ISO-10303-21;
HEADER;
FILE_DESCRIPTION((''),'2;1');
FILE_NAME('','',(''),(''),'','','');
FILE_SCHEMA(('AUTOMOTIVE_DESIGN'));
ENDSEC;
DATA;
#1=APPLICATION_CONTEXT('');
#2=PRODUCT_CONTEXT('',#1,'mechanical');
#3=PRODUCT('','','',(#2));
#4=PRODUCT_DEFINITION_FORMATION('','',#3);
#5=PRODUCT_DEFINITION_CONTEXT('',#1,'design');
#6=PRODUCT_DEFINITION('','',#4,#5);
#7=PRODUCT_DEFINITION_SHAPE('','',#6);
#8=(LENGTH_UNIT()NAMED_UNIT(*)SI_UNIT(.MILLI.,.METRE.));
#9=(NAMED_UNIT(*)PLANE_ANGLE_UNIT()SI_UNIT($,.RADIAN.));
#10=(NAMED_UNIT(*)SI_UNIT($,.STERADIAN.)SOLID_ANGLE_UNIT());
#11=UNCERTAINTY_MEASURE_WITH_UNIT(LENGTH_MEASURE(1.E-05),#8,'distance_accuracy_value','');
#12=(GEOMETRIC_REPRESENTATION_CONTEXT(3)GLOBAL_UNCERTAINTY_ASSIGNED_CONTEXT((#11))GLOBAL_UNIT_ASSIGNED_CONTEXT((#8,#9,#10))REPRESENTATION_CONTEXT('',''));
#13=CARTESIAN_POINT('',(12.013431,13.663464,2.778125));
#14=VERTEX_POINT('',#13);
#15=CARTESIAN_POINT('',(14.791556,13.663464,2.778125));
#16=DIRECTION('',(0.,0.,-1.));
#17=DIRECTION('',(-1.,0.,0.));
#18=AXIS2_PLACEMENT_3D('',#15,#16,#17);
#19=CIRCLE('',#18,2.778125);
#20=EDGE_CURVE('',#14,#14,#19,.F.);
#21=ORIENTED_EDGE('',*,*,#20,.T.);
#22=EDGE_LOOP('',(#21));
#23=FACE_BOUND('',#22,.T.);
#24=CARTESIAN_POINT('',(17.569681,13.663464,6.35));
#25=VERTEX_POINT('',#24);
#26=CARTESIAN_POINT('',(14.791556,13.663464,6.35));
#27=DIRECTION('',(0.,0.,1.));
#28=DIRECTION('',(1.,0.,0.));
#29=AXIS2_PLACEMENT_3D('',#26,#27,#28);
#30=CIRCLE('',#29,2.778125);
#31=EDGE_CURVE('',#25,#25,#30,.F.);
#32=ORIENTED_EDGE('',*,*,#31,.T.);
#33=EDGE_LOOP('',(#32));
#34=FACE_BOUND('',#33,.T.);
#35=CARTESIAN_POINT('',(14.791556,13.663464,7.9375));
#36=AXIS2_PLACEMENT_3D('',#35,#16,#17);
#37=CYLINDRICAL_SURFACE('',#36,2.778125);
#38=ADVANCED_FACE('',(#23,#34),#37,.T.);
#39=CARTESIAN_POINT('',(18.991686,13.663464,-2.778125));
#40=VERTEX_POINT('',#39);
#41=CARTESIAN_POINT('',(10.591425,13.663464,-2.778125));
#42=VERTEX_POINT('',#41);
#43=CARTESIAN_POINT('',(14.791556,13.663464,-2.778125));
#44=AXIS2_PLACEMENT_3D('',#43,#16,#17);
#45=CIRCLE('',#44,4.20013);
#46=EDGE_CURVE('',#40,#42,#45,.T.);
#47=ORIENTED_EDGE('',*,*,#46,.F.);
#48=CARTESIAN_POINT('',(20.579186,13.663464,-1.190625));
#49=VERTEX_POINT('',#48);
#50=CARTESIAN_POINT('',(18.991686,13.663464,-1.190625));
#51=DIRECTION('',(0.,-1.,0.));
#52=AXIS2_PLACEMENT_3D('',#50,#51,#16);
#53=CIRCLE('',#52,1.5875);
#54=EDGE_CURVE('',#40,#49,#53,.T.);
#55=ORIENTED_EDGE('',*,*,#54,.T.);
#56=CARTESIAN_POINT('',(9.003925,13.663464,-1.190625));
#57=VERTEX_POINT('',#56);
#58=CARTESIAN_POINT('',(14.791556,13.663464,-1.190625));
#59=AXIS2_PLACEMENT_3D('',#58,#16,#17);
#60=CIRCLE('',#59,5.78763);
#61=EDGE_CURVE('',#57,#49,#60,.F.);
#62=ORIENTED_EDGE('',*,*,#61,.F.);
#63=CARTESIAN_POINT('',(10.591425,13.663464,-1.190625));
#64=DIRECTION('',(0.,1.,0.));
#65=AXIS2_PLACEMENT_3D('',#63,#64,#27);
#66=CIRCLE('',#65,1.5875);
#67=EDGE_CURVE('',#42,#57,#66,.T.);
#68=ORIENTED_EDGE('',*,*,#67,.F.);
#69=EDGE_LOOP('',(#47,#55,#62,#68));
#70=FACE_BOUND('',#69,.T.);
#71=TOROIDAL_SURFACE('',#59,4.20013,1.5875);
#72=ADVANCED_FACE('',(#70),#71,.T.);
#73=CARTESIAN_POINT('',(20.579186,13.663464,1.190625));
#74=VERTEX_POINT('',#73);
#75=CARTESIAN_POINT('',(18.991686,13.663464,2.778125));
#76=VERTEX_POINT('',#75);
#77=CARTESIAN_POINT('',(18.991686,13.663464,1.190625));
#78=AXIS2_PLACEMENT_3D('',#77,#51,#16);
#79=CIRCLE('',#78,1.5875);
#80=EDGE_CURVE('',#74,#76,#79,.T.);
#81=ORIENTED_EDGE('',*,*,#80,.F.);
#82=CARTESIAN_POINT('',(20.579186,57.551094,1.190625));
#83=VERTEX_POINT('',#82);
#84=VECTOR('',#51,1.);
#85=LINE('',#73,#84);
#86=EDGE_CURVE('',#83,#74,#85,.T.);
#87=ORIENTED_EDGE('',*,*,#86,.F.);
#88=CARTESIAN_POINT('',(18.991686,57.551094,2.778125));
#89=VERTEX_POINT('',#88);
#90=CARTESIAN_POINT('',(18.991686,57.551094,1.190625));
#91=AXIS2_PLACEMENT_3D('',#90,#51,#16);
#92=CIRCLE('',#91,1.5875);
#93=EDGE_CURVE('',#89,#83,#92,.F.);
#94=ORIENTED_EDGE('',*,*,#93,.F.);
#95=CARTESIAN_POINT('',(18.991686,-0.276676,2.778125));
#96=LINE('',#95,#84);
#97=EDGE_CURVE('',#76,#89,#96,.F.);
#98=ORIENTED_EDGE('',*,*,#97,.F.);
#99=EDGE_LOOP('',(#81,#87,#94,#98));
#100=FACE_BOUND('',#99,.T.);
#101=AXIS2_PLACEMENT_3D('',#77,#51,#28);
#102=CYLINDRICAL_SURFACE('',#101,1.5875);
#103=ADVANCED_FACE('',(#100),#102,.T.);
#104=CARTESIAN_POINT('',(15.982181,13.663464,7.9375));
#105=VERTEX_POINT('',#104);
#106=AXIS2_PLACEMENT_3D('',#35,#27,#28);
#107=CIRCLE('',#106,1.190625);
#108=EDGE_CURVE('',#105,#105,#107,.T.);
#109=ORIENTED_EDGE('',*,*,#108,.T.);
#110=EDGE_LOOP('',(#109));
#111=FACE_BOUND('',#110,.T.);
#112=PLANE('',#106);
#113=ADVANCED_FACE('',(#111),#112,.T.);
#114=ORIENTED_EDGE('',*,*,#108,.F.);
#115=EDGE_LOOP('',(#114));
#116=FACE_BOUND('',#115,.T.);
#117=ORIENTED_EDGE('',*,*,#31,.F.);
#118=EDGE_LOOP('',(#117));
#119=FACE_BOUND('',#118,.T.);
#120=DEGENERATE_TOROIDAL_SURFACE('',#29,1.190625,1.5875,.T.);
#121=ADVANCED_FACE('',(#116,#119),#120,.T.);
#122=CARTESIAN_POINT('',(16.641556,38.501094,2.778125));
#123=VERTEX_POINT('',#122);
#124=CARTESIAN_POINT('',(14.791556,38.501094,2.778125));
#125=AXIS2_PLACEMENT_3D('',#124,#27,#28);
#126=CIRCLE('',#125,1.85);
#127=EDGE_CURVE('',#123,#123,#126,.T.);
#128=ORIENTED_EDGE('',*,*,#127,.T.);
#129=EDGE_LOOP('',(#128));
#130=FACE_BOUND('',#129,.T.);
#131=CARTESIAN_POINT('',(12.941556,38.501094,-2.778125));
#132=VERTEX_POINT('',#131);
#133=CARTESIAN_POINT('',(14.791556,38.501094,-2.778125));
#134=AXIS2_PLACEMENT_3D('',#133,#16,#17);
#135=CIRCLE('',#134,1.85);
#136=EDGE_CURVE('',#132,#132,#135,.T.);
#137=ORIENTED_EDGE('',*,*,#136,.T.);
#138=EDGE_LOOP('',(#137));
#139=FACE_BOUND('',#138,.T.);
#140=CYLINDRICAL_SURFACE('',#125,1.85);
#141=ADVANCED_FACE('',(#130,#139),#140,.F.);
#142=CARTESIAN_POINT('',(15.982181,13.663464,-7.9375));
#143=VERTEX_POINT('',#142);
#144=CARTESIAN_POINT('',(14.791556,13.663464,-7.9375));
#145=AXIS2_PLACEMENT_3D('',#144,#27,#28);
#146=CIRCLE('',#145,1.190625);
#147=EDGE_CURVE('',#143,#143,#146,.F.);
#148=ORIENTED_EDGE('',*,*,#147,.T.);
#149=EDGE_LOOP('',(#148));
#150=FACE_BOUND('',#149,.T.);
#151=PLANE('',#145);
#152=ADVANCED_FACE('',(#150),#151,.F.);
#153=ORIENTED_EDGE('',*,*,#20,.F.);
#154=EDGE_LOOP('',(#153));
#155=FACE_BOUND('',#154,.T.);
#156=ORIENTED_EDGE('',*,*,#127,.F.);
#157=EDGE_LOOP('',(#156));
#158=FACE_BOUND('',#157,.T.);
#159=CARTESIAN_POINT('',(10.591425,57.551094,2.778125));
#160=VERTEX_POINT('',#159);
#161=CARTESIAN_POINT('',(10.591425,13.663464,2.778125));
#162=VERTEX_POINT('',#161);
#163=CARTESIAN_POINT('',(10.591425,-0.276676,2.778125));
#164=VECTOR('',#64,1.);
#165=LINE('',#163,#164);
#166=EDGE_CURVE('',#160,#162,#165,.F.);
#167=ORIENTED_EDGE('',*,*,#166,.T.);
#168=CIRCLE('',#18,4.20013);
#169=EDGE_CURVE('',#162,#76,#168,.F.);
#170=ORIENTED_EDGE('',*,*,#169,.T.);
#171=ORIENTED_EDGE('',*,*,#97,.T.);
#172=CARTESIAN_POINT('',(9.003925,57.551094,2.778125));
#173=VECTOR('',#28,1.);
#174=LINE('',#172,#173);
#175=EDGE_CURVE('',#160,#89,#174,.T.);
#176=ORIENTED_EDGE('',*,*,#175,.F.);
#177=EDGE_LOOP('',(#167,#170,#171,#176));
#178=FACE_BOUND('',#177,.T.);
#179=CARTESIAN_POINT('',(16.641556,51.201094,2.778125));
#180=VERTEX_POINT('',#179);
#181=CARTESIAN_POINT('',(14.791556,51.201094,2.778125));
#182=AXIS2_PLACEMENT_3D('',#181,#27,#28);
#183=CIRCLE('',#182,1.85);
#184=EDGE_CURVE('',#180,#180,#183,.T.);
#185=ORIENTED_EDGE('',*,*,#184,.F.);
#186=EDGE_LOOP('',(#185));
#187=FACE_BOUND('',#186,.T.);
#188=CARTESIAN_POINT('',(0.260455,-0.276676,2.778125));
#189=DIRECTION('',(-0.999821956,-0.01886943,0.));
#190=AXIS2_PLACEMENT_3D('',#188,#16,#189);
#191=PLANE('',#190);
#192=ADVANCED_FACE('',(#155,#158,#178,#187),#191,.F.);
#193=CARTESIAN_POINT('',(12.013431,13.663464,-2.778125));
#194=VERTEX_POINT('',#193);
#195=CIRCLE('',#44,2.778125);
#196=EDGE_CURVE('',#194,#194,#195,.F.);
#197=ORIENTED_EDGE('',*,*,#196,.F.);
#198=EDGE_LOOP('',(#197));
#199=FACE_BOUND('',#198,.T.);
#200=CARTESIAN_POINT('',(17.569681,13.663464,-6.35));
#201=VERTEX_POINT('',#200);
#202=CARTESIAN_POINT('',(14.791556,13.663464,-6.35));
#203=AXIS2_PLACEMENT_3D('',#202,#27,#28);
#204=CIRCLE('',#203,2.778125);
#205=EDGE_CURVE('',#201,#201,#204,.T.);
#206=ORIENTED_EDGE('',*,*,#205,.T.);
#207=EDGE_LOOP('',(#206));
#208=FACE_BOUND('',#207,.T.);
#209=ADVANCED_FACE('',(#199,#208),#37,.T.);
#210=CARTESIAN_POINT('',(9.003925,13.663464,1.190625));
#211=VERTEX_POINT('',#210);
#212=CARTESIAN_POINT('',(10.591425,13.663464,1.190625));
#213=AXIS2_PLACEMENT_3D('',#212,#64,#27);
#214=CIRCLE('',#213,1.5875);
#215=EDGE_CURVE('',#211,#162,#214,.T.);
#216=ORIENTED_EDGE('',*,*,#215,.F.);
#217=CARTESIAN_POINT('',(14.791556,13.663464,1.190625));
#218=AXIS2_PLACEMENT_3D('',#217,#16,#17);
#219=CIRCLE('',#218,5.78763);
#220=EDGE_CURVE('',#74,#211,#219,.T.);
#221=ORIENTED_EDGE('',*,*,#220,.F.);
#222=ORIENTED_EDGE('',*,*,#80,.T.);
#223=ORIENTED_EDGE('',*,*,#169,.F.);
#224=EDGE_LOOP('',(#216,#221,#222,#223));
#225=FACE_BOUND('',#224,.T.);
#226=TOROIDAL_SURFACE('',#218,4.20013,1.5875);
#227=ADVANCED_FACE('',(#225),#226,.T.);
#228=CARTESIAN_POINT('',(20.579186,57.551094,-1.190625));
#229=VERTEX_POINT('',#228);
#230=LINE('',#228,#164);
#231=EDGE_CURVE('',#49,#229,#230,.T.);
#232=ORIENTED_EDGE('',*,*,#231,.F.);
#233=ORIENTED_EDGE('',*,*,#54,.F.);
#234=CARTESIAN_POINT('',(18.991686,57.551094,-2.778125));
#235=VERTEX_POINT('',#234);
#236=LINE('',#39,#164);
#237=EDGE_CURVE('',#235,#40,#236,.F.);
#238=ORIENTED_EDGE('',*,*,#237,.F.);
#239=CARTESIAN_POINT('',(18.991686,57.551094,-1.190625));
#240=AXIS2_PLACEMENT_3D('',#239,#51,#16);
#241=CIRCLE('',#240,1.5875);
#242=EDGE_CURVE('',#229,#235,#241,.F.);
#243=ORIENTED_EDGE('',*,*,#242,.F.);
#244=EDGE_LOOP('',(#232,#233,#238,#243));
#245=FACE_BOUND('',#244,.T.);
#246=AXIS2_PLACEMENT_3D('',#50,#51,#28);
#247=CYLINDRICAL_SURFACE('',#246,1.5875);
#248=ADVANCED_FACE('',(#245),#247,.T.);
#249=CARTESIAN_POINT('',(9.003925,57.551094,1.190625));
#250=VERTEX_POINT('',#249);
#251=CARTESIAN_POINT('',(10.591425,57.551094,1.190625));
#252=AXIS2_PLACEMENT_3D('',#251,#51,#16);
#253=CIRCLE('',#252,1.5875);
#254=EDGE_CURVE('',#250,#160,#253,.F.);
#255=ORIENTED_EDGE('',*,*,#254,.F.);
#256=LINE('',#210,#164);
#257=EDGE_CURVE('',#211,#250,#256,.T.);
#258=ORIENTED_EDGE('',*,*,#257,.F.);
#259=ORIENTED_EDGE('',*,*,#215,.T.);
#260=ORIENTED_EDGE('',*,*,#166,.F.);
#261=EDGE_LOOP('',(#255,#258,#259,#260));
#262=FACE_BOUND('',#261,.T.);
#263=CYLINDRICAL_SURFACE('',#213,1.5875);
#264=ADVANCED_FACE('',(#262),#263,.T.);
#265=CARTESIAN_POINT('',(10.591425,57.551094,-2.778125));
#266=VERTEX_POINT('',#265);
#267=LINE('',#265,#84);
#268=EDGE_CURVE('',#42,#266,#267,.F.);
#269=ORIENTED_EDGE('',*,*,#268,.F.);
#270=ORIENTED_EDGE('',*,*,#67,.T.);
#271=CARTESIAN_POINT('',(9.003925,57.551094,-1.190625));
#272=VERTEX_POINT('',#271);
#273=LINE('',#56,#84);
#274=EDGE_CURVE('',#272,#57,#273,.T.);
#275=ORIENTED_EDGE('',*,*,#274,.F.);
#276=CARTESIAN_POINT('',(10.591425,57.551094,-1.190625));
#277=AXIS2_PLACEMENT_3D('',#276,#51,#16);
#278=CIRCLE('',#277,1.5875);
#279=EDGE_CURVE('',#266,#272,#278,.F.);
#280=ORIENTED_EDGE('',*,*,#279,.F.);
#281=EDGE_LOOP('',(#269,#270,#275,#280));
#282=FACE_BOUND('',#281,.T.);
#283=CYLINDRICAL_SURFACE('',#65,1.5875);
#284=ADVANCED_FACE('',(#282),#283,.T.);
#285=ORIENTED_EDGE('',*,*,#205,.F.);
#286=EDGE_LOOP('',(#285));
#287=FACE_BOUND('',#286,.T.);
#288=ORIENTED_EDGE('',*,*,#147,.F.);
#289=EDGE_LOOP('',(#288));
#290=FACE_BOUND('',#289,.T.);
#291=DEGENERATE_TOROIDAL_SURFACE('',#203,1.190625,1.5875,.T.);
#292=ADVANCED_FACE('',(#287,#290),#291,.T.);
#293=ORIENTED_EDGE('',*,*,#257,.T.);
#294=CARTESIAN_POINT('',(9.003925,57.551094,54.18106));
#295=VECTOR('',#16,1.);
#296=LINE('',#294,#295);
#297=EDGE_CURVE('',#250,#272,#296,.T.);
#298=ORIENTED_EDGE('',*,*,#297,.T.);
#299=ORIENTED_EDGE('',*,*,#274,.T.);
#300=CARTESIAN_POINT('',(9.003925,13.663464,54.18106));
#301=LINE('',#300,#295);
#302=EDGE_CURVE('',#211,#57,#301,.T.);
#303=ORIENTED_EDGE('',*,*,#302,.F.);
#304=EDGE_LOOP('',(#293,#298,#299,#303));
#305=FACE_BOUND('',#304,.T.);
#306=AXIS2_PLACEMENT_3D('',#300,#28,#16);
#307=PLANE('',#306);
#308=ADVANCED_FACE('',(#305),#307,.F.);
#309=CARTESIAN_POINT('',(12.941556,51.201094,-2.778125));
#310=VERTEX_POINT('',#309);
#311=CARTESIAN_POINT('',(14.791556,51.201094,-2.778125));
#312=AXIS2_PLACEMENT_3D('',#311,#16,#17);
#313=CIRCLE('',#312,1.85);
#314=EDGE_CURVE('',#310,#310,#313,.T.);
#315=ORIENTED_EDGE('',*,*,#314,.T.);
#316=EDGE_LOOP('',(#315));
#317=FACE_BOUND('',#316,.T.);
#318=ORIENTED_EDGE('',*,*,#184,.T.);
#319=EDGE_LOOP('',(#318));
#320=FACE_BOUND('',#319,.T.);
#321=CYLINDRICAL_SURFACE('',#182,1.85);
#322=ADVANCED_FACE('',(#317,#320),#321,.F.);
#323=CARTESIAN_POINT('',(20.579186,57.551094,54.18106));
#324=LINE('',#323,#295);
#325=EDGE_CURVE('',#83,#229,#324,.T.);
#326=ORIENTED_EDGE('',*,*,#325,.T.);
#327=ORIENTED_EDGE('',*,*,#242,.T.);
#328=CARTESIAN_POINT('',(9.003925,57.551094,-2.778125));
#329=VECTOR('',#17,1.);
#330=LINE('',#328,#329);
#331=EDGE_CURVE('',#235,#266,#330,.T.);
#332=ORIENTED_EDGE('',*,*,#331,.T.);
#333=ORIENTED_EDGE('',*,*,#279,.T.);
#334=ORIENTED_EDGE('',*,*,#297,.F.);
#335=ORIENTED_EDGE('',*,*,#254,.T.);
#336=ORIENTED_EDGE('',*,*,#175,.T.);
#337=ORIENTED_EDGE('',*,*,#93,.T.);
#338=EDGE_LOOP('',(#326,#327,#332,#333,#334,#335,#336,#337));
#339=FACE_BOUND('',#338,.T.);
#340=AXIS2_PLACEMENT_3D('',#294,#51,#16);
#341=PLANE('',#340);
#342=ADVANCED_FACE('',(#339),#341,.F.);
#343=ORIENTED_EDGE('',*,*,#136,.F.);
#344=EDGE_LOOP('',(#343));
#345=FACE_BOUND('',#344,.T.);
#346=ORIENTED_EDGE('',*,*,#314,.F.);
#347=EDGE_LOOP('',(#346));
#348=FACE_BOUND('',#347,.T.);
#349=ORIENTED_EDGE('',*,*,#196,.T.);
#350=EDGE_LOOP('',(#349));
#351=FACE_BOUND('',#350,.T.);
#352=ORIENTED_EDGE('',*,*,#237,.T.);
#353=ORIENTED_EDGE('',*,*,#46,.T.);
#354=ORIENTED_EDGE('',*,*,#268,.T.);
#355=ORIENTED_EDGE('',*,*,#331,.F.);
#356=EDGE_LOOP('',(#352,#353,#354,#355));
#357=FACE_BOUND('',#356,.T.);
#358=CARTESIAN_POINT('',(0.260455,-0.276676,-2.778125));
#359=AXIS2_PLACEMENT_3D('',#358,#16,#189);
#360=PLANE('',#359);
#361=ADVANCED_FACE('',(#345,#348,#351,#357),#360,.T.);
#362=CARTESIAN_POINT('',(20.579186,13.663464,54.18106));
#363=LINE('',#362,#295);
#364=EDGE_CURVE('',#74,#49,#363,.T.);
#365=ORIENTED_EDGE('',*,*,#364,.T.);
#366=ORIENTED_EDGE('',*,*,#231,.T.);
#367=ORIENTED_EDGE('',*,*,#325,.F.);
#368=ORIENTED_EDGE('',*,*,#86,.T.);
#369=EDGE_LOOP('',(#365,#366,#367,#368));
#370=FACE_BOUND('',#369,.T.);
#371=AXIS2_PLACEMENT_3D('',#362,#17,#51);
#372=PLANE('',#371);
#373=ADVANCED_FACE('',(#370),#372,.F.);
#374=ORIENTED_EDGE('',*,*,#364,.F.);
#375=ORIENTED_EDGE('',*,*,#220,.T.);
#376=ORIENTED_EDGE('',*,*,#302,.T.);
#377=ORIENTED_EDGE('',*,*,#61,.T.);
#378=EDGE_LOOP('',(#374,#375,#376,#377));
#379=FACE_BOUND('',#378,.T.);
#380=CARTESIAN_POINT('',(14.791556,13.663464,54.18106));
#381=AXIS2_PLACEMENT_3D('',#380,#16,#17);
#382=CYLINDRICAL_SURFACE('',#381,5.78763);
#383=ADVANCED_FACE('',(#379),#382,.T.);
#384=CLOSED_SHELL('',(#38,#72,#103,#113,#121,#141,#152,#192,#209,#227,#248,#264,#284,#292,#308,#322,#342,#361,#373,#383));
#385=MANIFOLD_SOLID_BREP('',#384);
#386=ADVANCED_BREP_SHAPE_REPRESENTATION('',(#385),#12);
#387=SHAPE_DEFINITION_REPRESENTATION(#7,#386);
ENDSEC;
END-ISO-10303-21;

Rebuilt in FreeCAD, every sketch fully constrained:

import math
import FreeCAD as App
import Part
import Sketcher
Q = App.Units.Quantity


def edges_at(feature, points):
    """Names of the edges that pass closest to the given points."""
    edges = feature.Shape.Edges
    near = lambda p: min(range(len(edges)), key=lambda i: edges[i].distToShape(Part.Vertex(*p))[0])
    return sorted({f"Edge{near(p) + 1}" for p in points})

doc = App.newDocument("Part")
body = doc.addObject("PartDesign::Body", "Body")

# Sketch on XY plane
sketch1 = doc.addObject("Sketcher::SketchObject", "Sketch")
body.addObject(sketch1)
sketch1.AttachmentSupport = (doc.XY_Plane, [""])
sketch1.MapMode = "FlatFace"
sketch1.addGeometry([
    Part.LineSegment(App.Vector(20.579186, 13.663464, 0), App.Vector(20.579186, 57.551094, 0)),
    Part.LineSegment(App.Vector(20.579186, 57.551094, 0), App.Vector(9.003925, 57.551094, 0)),
    Part.LineSegment(App.Vector(9.003925, 57.551094, 0), App.Vector(9.003925, 13.663464, 0)),
    Part.ArcOfCircle(Part.Circle(App.Vector(14.791556, 13.663464, 0), App.Vector(0, 0, 1), 5.78763), math.radians(180), math.radians(360)),
], False)
sketch1.addConstraint([
    Sketcher.Constraint("Coincident", 0, 2, 1, 1),
    Sketcher.Constraint("Coincident", 1, 2, 2, 1),
    Sketcher.Constraint("Tangent", 2, 2, 3, 1),
    Sketcher.Constraint("Tangent", 3, 2, 0, 1),
    Sketcher.Constraint("Vertical", 0),
    Sketcher.Constraint("Horizontal", 1),
    Sketcher.Constraint("Vertical", 2),
    Sketcher.Constraint("Radius", 3, 5.78763),
    Sketcher.Constraint("DistanceY", 0, 1, 0, 2, 43.88763),
    Sketcher.Constraint("DistanceX", -1, 1, 3, 3, 14.791556),
    Sketcher.Constraint("DistanceY", -1, 1, 3, 3, 13.663464),
])
pad1 = doc.addObject("PartDesign::Pad", "Pad")
body.addObject(pad1)
pad1.Profile = sketch1
pad1.Type = "TwoLengths"
pad1.Length = Q("0.109375 in")
pad1.Length2 = Q("0.109375 in")

# Sketch on XY plane
sketch2 = doc.addObject("Sketcher::SketchObject", "Sketch001")
body.addObject(sketch2)
sketch2.AttachmentSupport = (doc.XY_Plane, [""])
sketch2.MapMode = "FlatFace"
sketch2.addGeometry(Part.Circle(App.Vector(14.791556, 13.663464, 0), App.Vector(0, 0, 1), 2.778125), False)
sketch2.addConstraint([
    Sketcher.Constraint("Diameter", 0, Q("0.21875 in")),
    Sketcher.Constraint("DistanceX", -1, 1, 0, 3, 14.791556),
    Sketcher.Constraint("DistanceY", -1, 1, 0, 3, 13.663464),
])
pad2 = doc.addObject("PartDesign::Pad", "Pad001")
body.addObject(pad2)
pad2.Profile = sketch2
pad2.Length = Q("0.625 in")
pad2.Midplane = True

# Sketch on XY plane
sketch3 = doc.addObject("Sketcher::SketchObject", "Sketch002")
body.addObject(sketch3)
sketch3.AttachmentSupport = (doc.XY_Plane, [""])
sketch3.MapMode = "FlatFace"
sketch3.AttachmentOffset = App.Placement(App.Vector(0, 0, 0.109375 * 25.4), App.Rotation())
sketch3.addGeometry([
    Part.Circle(App.Vector(14.791556, 51.201094, 0), App.Vector(0, 0, 1), 1.85),
    Part.Circle(App.Vector(14.791556, 38.501094, 0), App.Vector(0, 0, 1), 1.85),
], False)
sketch3.addConstraint([
    Sketcher.Constraint("Equal", 0, 1),
    Sketcher.Constraint("Vertical", 0, 3, 1, 3),
    Sketcher.Constraint("DistanceY", 1, 3, 0, 3, Q("0.5 in")),
    Sketcher.Constraint("Diameter", 0, 3.7),
    Sketcher.Constraint("DistanceX", -1, 1, 0, 3, 14.791556),
    Sketcher.Constraint("DistanceY", -1, 1, 0, 3, 51.201094),
])
doc.recompute()
hole = doc.addObject("PartDesign::Hole", "Hole")
body.addObject(hole)
hole.Profile = sketch3
hole.ThreadType = "None"
hole.Diameter = 3.7
hole.DepthType = "ThroughAll"
doc.recompute()

fillet = doc.addObject("PartDesign::Fillet", "Fillet")
body.addObject(fillet)
fillet.Base = (hole, edges_at(hole, [(17.57, 13.663, -7.938), (17.57, 13.663, 7.938)]))
fillet.Radius = Q("0.0625 in")
doc.recompute()

fillet2 = doc.addObject("PartDesign::Fillet", "Fillet001")
body.addObject(fillet2)
fillet2.Base = (fillet, edges_at(fillet, [
    (9.004, 35.607, 2.778),
    (20.579, 35.607, 2.778),
    (14.792, 7.876, 2.778),
    (20.579, 35.607, -2.778),
    (9.004, 35.607, -2.778),
    (14.792, 7.876, -2.778),
]))
fillet2.Radius = Q("0.0625 in")

doc.recompute()
